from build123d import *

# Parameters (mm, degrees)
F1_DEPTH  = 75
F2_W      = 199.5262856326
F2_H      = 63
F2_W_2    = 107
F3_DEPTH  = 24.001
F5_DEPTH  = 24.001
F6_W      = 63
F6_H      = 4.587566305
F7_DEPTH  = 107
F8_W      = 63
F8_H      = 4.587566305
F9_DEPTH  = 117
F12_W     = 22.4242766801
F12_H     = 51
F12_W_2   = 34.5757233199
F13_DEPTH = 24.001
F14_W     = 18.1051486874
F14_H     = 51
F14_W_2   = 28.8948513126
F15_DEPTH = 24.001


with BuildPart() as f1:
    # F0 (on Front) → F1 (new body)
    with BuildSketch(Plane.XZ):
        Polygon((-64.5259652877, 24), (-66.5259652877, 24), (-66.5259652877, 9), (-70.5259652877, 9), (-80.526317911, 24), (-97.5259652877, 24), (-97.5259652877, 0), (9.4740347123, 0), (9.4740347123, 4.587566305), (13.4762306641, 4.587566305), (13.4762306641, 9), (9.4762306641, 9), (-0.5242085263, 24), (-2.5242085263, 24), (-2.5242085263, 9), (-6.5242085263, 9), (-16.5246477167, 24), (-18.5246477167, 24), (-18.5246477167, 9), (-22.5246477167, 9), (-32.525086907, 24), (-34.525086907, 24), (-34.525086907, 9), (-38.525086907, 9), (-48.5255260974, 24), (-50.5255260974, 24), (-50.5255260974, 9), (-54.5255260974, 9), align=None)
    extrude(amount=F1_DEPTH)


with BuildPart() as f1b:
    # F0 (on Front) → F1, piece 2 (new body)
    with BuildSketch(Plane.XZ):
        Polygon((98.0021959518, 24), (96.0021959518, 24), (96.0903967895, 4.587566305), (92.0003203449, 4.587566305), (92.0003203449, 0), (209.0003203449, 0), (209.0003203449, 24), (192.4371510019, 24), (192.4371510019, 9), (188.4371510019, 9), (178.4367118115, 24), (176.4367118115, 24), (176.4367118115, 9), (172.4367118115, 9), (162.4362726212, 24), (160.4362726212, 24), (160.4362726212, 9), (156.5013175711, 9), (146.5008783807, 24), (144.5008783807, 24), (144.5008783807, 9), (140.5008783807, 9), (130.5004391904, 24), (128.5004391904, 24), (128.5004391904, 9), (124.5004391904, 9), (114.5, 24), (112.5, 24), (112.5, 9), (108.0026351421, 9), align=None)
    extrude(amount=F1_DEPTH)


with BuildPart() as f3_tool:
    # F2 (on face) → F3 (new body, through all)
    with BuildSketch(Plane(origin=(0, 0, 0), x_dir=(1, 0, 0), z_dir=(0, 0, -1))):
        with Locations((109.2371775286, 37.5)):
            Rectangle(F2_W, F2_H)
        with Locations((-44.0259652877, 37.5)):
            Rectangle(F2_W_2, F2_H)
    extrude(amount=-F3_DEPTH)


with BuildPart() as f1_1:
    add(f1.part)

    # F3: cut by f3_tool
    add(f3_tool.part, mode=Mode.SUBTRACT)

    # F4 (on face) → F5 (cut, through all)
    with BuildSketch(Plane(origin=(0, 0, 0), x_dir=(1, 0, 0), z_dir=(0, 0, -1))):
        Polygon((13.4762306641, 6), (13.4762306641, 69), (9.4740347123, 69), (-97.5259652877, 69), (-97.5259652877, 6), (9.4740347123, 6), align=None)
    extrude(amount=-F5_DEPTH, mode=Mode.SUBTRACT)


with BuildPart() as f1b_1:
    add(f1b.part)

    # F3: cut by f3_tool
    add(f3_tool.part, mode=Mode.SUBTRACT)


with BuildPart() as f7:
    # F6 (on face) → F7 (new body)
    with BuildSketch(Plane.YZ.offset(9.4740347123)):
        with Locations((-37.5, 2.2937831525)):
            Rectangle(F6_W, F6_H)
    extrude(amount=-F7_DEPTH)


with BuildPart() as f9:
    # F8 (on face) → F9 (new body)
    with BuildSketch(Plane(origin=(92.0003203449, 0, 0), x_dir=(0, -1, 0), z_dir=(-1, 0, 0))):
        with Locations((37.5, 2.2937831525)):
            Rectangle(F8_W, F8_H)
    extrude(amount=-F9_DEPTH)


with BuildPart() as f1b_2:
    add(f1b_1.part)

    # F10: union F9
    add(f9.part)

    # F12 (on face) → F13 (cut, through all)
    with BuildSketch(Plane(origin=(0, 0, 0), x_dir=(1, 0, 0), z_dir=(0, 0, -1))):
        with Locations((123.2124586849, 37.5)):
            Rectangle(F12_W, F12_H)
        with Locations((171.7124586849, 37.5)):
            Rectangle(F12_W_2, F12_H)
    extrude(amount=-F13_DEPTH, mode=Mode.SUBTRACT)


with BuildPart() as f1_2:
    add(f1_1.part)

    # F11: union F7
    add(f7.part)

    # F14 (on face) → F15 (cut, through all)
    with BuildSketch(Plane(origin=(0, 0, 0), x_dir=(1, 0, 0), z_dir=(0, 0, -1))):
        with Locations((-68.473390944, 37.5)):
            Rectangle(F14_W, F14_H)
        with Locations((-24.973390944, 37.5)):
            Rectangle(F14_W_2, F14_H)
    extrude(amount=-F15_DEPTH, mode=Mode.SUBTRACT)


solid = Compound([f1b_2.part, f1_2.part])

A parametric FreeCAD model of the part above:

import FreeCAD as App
import Part
import Sketcher


def add_polygon(sketch, points):
    """Adds a closed chain of lines whose ends are joined by coincident constraints."""
    first, n = sketch.GeometryCount, len(points)
    for a, b in zip(points, points[1:] + points[:1]):
        sketch.addGeometry(Part.LineSegment(App.Vector(*a, 0), App.Vector(*b, 0)), False)
    for i in range(n):
        sketch.addConstraint(Sketcher.Constraint("Coincident", first + i, 2, first + (i + 1) % n, 1))

doc = App.newDocument("Part")
params = doc.addObject("Spreadsheet::Sheet", "Params")
for row, (alias, value) in enumerate([
    ("sketch1_width", "2 mm"),
    ("sketch1_width2", "4 mm"),
    ("sketch1_width3", "107 mm"),
    ("sketch1_height", "15 mm"),
    ("sketch1_height2", "24 mm"),
    ("pad1_length", "75 mm"),
    ("sketch2_width", "2 mm"),
    ("sketch2_width2", "117 mm"),
    ("sketch2_width3", "4 mm"),
    ("sketch2_height", "24 mm"),
    ("sketch2_height2", "15 mm"),
    ("pad2_length", "75 mm"),
    ("sketch3_height", "63 mm"),
    ("pad3_length", "24.001 mm"),
    ("sketch4_height", "63 mm"),
    ("sketch5_width", "63 mm"),
    ("pad4_length", "107 mm"),
    ("sketch6_width", "63 mm"),
    ("pad5_length", "117 mm"),
    ("sketch7_height", "51 mm"),
    ("sketch8_height", "51 mm"),
], start=1):
    params.set(f"A{row}", alias)
    params.set(f"B{row}", "=" + value)
    params.setAlias(f"B{row}", alias)

body = doc.addObject("PartDesign::Body", "Body")

# Sketch on XZ plane
sketch1 = body.newObject("Sketcher::SketchObject", "Sketch")
sketch1.AttachmentSupport = (doc.getObject("XZ_Plane"), [""])
sketch1.MapMode = "FlatFace"
add_polygon(sketch1, [(-64.5, 24), (-66.5, 24), (-66.5, 9), (-70.5, 9), (-80.5, 24), (-97.5, 24), (-97.5, 0), (9.5, 0), (9.5, 4.6), (13.5, 4.6), (13.5, 9), (9.5, 9), (-0.5, 24), (-2.5, 24), (-2.5, 9), (-6.5, 9), (-16.5, 24), (-18.5, 24), (-18.5, 9), (-22.5, 9), (-32.5, 24), (-34.5, 24), (-34.5, 9), (-38.5, 9), (-48.5, 24), (-50.5, 24), (-50.5, 9), (-54.5, 9)])  # lines 0-27
sketch1.addConstraint(Sketcher.Constraint("Horizontal", 0))
sketch1.addConstraint(Sketcher.Constraint("Vertical", 1))
sketch1.addConstraint(Sketcher.Constraint("Horizontal", 2))
sketch1.addConstraint(Sketcher.Constraint("Horizontal", 4))
sketch1.addConstraint(Sketcher.Constraint("Vertical", 5))
sketch1.addConstraint(Sketcher.Constraint("Horizontal", 6))
sketch1.addConstraint(Sketcher.Constraint("Vertical", 7))
sketch1.addConstraint(Sketcher.Constraint("Horizontal", 8))
sketch1.addConstraint(Sketcher.Constraint("Vertical", 9))
sketch1.addConstraint(Sketcher.Constraint("Horizontal", 10))
sketch1.addConstraint(Sketcher.Constraint("Horizontal", 12))
sketch1.addConstraint(Sketcher.Constraint("Vertical", 13))
sketch1.addConstraint(Sketcher.Constraint("Horizontal", 14))
sketch1.addConstraint(Sketcher.Constraint("Horizontal", 16))
sketch1.addConstraint(Sketcher.Constraint("Vertical", 17))
sketch1.addConstraint(Sketcher.Constraint("Horizontal", 18))
sketch1.addConstraint(Sketcher.Constraint("Horizontal", 20))
sketch1.addConstraint(Sketcher.Constraint("Vertical", 21))
sketch1.addConstraint(Sketcher.Constraint("Horizontal", 22))
sketch1.addConstraint(Sketcher.Constraint("Horizontal", 24))
sketch1.addConstraint(Sketcher.Constraint("Vertical", 25))
sketch1.addConstraint(Sketcher.Constraint("Horizontal", 26))
sketch1.addConstraint(Sketcher.Constraint("PointOnObject", 5, 2, -1))
sketch1.addConstraint(Sketcher.Constraint("Parallel", 11, 15))
sketch1.addConstraint(Sketcher.Constraint("Parallel", 15, 19))
sketch1.addConstraint(Sketcher.Constraint("Parallel", 19, 23))
sketch1.addConstraint(Sketcher.Constraint("Parallel", 23, 27))
sketch1.addConstraint(Sketcher.Constraint("Horizontal", 0, 2, 3, 2))
sketch1.addConstraint(Sketcher.Constraint("Horizontal", 2, 2, 9, 2))
sketch1.addConstraint(Sketcher.Constraint("Horizontal", 4, 2, 11, 2))
sketch1.addConstraint(Sketcher.Constraint("Horizontal", 10, 2, 13, 2))
sketch1.addConstraint(Sketcher.Constraint("Horizontal", 12, 2, 15, 2))
sketch1.addConstraint(Sketcher.Constraint("Horizontal", 14, 2, 17, 2))
sketch1.addConstraint(Sketcher.Constraint("Horizontal", 16, 2, 19, 2))
sketch1.addConstraint(Sketcher.Constraint("Horizontal", 18, 2, 21, 2))
sketch1.addConstraint(Sketcher.Constraint("Horizontal", 20, 2, 23, 2))
sketch1.addConstraint(Sketcher.Constraint("Horizontal", 22, 2, 25, 2))
sketch1.addConstraint(Sketcher.Constraint("Equal", 2, 10))
sketch1.addConstraint(Sketcher.Constraint("Equal", 0, 12))
sketch1.addConstraint(Sketcher.Constraint("Equal", 10, 14))
sketch1.addConstraint(Sketcher.Constraint("Equal", 12, 16))
sketch1.addConstraint(Sketcher.Constraint("Equal", 14, 18))
sketch1.addConstraint(Sketcher.Constraint("Equal", 16, 20))
sketch1.addConstraint(Sketcher.Constraint("Equal", 18, 22))
sketch1.addConstraint(Sketcher.Constraint("Equal", 20, 24))
sketch1.addConstraint(Sketcher.Constraint("Equal", 22, 26))
sketch1.addConstraint(Sketcher.Constraint("DistanceX", 0, 2, 0, 1, 2.0))
sketch1.addConstraint(Sketcher.Constraint("DistanceX", 2, 2, 2, 1, 4.0))
sketch1.addConstraint(Sketcher.Constraint("DistanceX", 6, 1, 6, 2, 107.0))
sketch1.addConstraint(Sketcher.Constraint("DistanceY", 1, 2, 1, 1, 15.0))
sketch1.addConstraint(Sketcher.Constraint("DistanceY", 5, 2, 5, 1, 24.0))
sketch1.addConstraint(Sketcher.Constraint("DistanceX", 4, 2, 2, 2, 27.0))
sketch1.addConstraint(Sketcher.Constraint("Distance", 11, 18.028))
sketch1.addConstraint(Sketcher.Constraint("Distance", 3, 18.027952))
sketch1.addConstraint(Sketcher.Constraint("DistanceY", 7, 1, 7, 2, 4.587566))
sketch1.addConstraint(Sketcher.Constraint("DistanceX", -1, 1, 8, 2, 13.476231))
sketch1.setExpression("Constraints[74]", "Params.sketch1_width")
sketch1.setExpression("Constraints[75]", "Params.sketch1_width2")
sketch1.setExpression("Constraints[76]", "Params.sketch1_width3")
sketch1.setExpression("Constraints[77]", "Params.sketch1_height")
sketch1.setExpression("Constraints[78]", "Params.sketch1_height2")
pad1 = body.newObject("PartDesign::Pad", "Pad")
pad1.Profile = sketch1
pad1.setExpression("Length", "Params.pad1_length")
body2 = doc.addObject("PartDesign::Body", "Body001")

# Sketch on XZ plane
sketch2 = body2.newObject("Sketcher::SketchObject", "Sketch001")
sketch2.AttachmentSupport = (doc.getObject("XZ_Plane001"), [""])
sketch2.MapMode = "FlatFace"
add_polygon(sketch2, [(98, 24), (96, 24), (96.1, 4.6), (92, 4.6), (92, 0), (209, 0), (209, 24), (192.4, 24), (192.4, 9), (188.4, 9), (178.4, 24), (176.4, 24), (176.4, 9), (172.4, 9), (162.4, 24), (160.4, 24), (160.4, 9), (156.5, 9), (146.5, 24), (144.5, 24), (144.5, 9), (140.5, 9), (130.5, 24), (128.5, 24), (128.5, 9), (124.5, 9), (114.5, 24), (112.5, 24), (112.5, 9), (108, 9)])  # lines 0-29
sketch2.addConstraint(Sketcher.Constraint("Horizontal", 0))
sketch2.addConstraint(Sketcher.Constraint("Horizontal", 2))
sketch2.addConstraint(Sketcher.Constraint("Vertical", 3))
sketch2.addConstraint(Sketcher.Constraint("Horizontal", 4))
sketch2.addConstraint(Sketcher.Constraint("Vertical", 5))
sketch2.addConstraint(Sketcher.Constraint("Horizontal", 6))
sketch2.addConstraint(Sketcher.Constraint("Vertical", 7))
sketch2.addConstraint(Sketcher.Constraint("Horizontal", 8))
sketch2.addConstraint(Sketcher.Constraint("Horizontal", 10))
sketch2.addConstraint(Sketcher.Constraint("Vertical", 11))
sketch2.addConstraint(Sketcher.Constraint("Horizontal", 12))
sketch2.addConstraint(Sketcher.Constraint("Horizontal", 14))
sketch2.addConstraint(Sketcher.Constraint("Vertical", 15))
sketch2.addConstraint(Sketcher.Constraint("Horizontal", 16))
sketch2.addConstraint(Sketcher.Constraint("Horizontal", 18))
sketch2.addConstraint(Sketcher.Constraint("Vertical", 19))
sketch2.addConstraint(Sketcher.Constraint("Horizontal", 20))
sketch2.addConstraint(Sketcher.Constraint("Horizontal", 22))
sketch2.addConstraint(Sketcher.Constraint("Vertical", 23))
sketch2.addConstraint(Sketcher.Constraint("Horizontal", 24))
sketch2.addConstraint(Sketcher.Constraint("Horizontal", 26))
sketch2.addConstraint(Sketcher.Constraint("Vertical", 27))
sketch2.addConstraint(Sketcher.Constraint("Horizontal", 28))
sketch2.addConstraint(Sketcher.Constraint("PointOnObject", 3, 2, -1))
sketch2.addConstraint(Sketcher.Constraint("Parallel", 9, 13))
sketch2.addConstraint(Sketcher.Constraint("Parallel", 13, 17))
sketch2.addConstraint(Sketcher.Constraint("Parallel", 17, 21))
sketch2.addConstraint(Sketcher.Constraint("Parallel", 21, 25))
sketch2.addConstraint(Sketcher.Constraint("Parallel", 25, 29))
sketch2.addConstraint(Sketcher.Constraint("Horizontal", 0, 2, 5, 2))
sketch2.addConstraint(Sketcher.Constraint("Horizontal", 6, 2, 9, 2))
sketch2.addConstraint(Sketcher.Constraint("Horizontal", 8, 2, 11, 2))
sketch2.addConstraint(Sketcher.Constraint("Horizontal", 10, 2, 13, 2))
sketch2.addConstraint(Sketcher.Constraint("Horizontal", 12, 2, 15, 2))
sketch2.addConstraint(Sketcher.Constraint("Horizontal", 14, 2, 17, 2))
sketch2.addConstraint(Sketcher.Constraint("Horizontal", 16, 2, 19, 2))
sketch2.addConstraint(Sketcher.Constraint("Horizontal", 18, 2, 21, 2))
sketch2.addConstraint(Sketcher.Constraint("Horizontal", 20, 2, 23, 2))
sketch2.addConstraint(Sketcher.Constraint("Horizontal", 22, 2, 25, 2))
sketch2.addConstraint(Sketcher.Constraint("Horizontal", 24, 2, 27, 2))
sketch2.addConstraint(Sketcher.Constraint("Equal", 0, 10))
sketch2.addConstraint(Sketcher.Constraint("Equal", 8, 12))
sketch2.addConstraint(Sketcher.Constraint("Equal", 10, 14))
sketch2.addConstraint(Sketcher.Constraint("Equal", 14, 18))
sketch2.addConstraint(Sketcher.Constraint("Equal", 12, 20))
sketch2.addConstraint(Sketcher.Constraint("Equal", 18, 22))
sketch2.addConstraint(Sketcher.Constraint("Equal", 20, 24))
sketch2.addConstraint(Sketcher.Constraint("Equal", 22, 26))
sketch2.addConstraint(Sketcher.Constraint("DistanceX", 0, 2, 0, 1, 2.0))
sketch2.addConstraint(Sketcher.Constraint("DistanceX", 4, 1, 4, 2, 117.0))
sketch2.addConstraint(Sketcher.Constraint("DistanceX", 8, 2, 8, 1, 4.0))
sketch2.addConstraint(Sketcher.Constraint("DistanceY", 5, 1, 5, 2, 24.0))
sketch2.addConstraint(Sketcher.Constraint("DistanceY", 7, 2, 7, 1, 15.0))
sketch2.addConstraint(Sketcher.Constraint("DistanceX", -1, 1, 25, 2, 114.5))
sketch2.addConstraint(Sketcher.Constraint("Distance", 9, 18.028))
sketch2.addConstraint(Sketcher.Constraint("DistanceX", 6, 2, 6, 1, 16.563169))
sketch2.addConstraint(Sketcher.Constraint("DistanceX", 0, 2, 1, 2, 0.088201))
sketch2.addConstraint(Sketcher.Constraint("DistanceX", 2, 2, 2, 1, 4.090076))
sketch2.addConstraint(Sketcher.Constraint("DistanceX", 16, 2, 16, 1, 3.934955))
sketch2.addConstraint(Sketcher.Constraint("DistanceY", 3, 2, 3, 1, 4.587566))
sketch2.setExpression("Constraints[78]", "Params.sketch2_width")
sketch2.setExpression("Constraints[79]", "Params.sketch2_width2")
sketch2.setExpression("Constraints[80]", "Params.sketch2_width3")
sketch2.setExpression("Constraints[81]", "Params.sketch2_height")
sketch2.setExpression("Constraints[82]", "Params.sketch2_height2")
pad2 = body2.newObject("PartDesign::Pad", "Pad001")
pad2.Profile = sketch2
pad2.setExpression("Length", "Params.pad2_length")
body3 = doc.addObject("PartDesign::Body", "Body002")

# Sketch on XY plane
sketch3 = body3.newObject("Sketcher::SketchObject", "Sketch002")
sketch3.AttachmentSupport = (doc.getObject("XY_Plane002"), [""])
sketch3.MapMode = "FlatFace"
add_polygon(sketch3, [(209, -6), (209, -69), (-98, -69), (-98, -6)])  # lines 0-3
sketch3.addConstraint(Sketcher.Constraint("Vertical", 0))
sketch3.addConstraint(Sketcher.Constraint("Horizontal", 1))
sketch3.addConstraint(Sketcher.Constraint("Vertical", 2))
sketch3.addConstraint(Sketcher.Constraint("Horizontal", 3))
sketch3.addConstraint(Sketcher.Constraint("DistanceY", 0, 2, 0, 1, 63.0))
sketch3.addConstraint(Sketcher.Constraint("DistanceY", 0, 2, -1, 1, 69.0))
sketch3.addConstraint(Sketcher.Constraint("DistanceX", 1, 2, 1, 1, 306.526286))
sketch3.addConstraint(Sketcher.Constraint("DistanceX", -1, 1, 0, 2, 209.00032))
sketch3.setExpression("Constraints[8]", "Params.sketch3_height")
pad3 = body3.newObject("PartDesign::Pad", "Pad002")
pad3.Profile = sketch3
pad3.setExpression("Length", "Params.pad3_length")
body.AllowCompound = True
doc.recompute()

body4 = doc.addObject("PartDesign::Body", "Body003")
body4.BaseFeature = body3
boolean = body.newObject("PartDesign::Boolean", "Boolean")
boolean.Type = "Cut"
boolean.addObjects([body4])
doc.recompute()

# Sketch on XY plane
sketch4 = body.newObject("Sketcher::SketchObject", "Sketch003")
sketch4.AttachmentSupport = (doc.getObject("XY_Plane"), [""])
sketch4.MapMode = "FlatFace"
add_polygon(sketch4, [(13, -6), (13, -69), (-98, -69), (-98, -6)])  # lines 0-3
sketch4.addConstraint(Sketcher.Constraint("Vertical", 0))
sketch4.addConstraint(Sketcher.Constraint("Horizontal", 1))
sketch4.addConstraint(Sketcher.Constraint("Vertical", 2))
sketch4.addConstraint(Sketcher.Constraint("Horizontal", 3))
sketch4.addConstraint(Sketcher.Constraint("DistanceY", 0, 2, 0, 1, 63.0))
sketch4.addConstraint(Sketcher.Constraint("DistanceY", 0, 2, -1, 1, 69.0))
sketch4.addConstraint(Sketcher.Constraint("DistanceX", 1, 2, 1, 1, 111.002196))
sketch4.addConstraint(Sketcher.Constraint("DistanceX", -1, 1, 0, 2, 13.476231))
sketch4.setExpression("Constraints[8]", "Params.sketch4_height")
pocket1 = body.newObject("PartDesign::Pocket", "Pocket")
pocket1.Profile = sketch4
pocket1.Type = "ThroughAll"
pocket1.Reversed = True
body2.AllowCompound = True
doc.recompute()

boolean2 = body2.newObject("PartDesign::Boolean", "Boolean001")
boolean2.Type = "Cut"
boolean2.addObjects([body3])
body5 = doc.addObject("PartDesign::Body", "Body004")

# Sketch on YZ plane
sketch5 = body5.newObject("Sketcher::SketchObject", "Sketch004")
sketch5.AttachmentSupport = (doc.getObject("YZ_Plane004"), [""])
sketch5.MapMode = "FlatFace"
sketch5.AttachmentOffset = App.Placement(App.Vector(0, 0, 9.474035), App.Rotation())
add_polygon(sketch5, [(-69, 4.6), (-69, 0), (-6, 0), (-6, 4.6)])  # lines 0-3
sketch5.addConstraint(Sketcher.Constraint("Vertical", 0))
sketch5.addConstraint(Sketcher.Constraint("Horizontal", 1))
sketch5.addConstraint(Sketcher.Constraint("Vertical", 2))
sketch5.addConstraint(Sketcher.Constraint("Horizontal", 3))
sketch5.addConstraint(Sketcher.Constraint("PointOnObject", 0, 2, -1))
sketch5.addConstraint(Sketcher.Constraint("DistanceX", 1, 1, 1, 2, 63.0))
sketch5.addConstraint(Sketcher.Constraint("DistanceX", 0, 2, -1, 1, 69.0))
sketch5.addConstraint(Sketcher.Constraint("DistanceY", 0, 2, 0, 1, 4.587566))
sketch5.setExpression("Constraints[9]", "Params.sketch5_width")
pad4 = body5.newObject("PartDesign::Pad", "Pad003")
pad4.Profile = sketch5
pad4.setExpression("Length", "Params.pad4_length")
pad4.Reversed = True
body6 = doc.addObject("PartDesign::Body", "Body005")

# Sketch on YZ plane
sketch6 = body6.newObject("Sketcher::SketchObject", "Sketch005")
sketch6.AttachmentSupport = (doc.getObject("YZ_Plane005"), [""])
sketch6.MapMode = "FlatFace"
sketch6.AttachmentOffset = App.Placement(App.Vector(0, 0, 92.00032), App.Rotation())
add_polygon(sketch6, [(-6, 4.6), (-6, 0), (-69, 0), (-69, 4.6)])  # lines 0-3
sketch6.addConstraint(Sketcher.Constraint("Vertical", 0))
sketch6.addConstraint(Sketcher.Constraint("Horizontal", 1))
sketch6.addConstraint(Sketcher.Constraint("Vertical", 2))
sketch6.addConstraint(Sketcher.Constraint("Horizontal", 3))
sketch6.addConstraint(Sketcher.Constraint("PointOnObject", 0, 2, -1))
sketch6.addConstraint(Sketcher.Constraint("DistanceX", 1, 2, 1, 1, 63.0))
sketch6.addConstraint(Sketcher.Constraint("DistanceX", 0, 2, -1, 1, 6.0))
sketch6.addConstraint(Sketcher.Constraint("DistanceY", 0, 2, 0, 1, 4.587566))
sketch6.setExpression("Constraints[9]", "Params.sketch6_width")
pad5 = body6.newObject("PartDesign::Pad", "Pad004")
pad5.Profile = sketch6
pad5.setExpression("Length", "Params.pad5_length")
doc.recompute()

boolean3 = body2.newObject("PartDesign::Boolean", "Boolean002")
boolean3.Type = "Fuse"
boolean3.addObjects([body6])

# Sketch on XY plane
sketch7 = body2.newObject("Sketcher::SketchObject", "Sketch006")
sketch7.AttachmentSupport = (doc.getObject("XY_Plane001"), [""])
sketch7.MapMode = "FlatFace"
add_polygon(sketch7, [(112, -63), (112, -12), (134, -12), (134, -63)])  # lines 0-3
add_polygon(sketch7, [(154, -63), (154, -12), (189, -12), (189, -63)])  # lines 4-7
sketch7.addConstraint(Sketcher.Constraint("Vertical", 0))
sketch7.addConstraint(Sketcher.Constraint("Horizontal", 1))
sketch7.addConstraint(Sketcher.Constraint("Vertical", 2))
sketch7.addConstraint(Sketcher.Constraint("Horizontal", 3))
sketch7.addConstraint(Sketcher.Constraint("Vertical", 4))
sketch7.addConstraint(Sketcher.Constraint("Horizontal", 5))
sketch7.addConstraint(Sketcher.Constraint("Vertical", 6))
sketch7.addConstraint(Sketcher.Constraint("Horizontal", 7))
sketch7.addConstraint(Sketcher.Constraint("Horizontal", 1, 2, 4, 2))
sketch7.addConstraint(Sketcher.Constraint("Horizontal", 3, 2, 6, 2))
sketch7.addConstraint(Sketcher.Constraint("DistanceY", 0, 1, 0, 2, 51.0))
sketch7.addConstraint(Sketcher.Constraint("DistanceY", 0, 2, -1, 1, 12.0))
sketch7.addConstraint(Sketcher.Constraint("DistanceX", 1, 2, 4, 2, 20.0))
sketch7.addConstraint(Sketcher.Constraint("DistanceX", 0, 2, 5, 2, 77.0))
sketch7.addConstraint(Sketcher.Constraint("DistanceX", 1, 1, 1, 2, 22.424277))
sketch7.addConstraint(Sketcher.Constraint("DistanceX", -1, 1, 0, 2, 112.00032))
sketch7.setExpression("Constraints[18]", "Params.sketch7_height")
pocket2 = body2.newObject("PartDesign::Pocket", "Pocket001")
pocket2.Profile = sketch7
pocket2.Type = "ThroughAll"
pocket2.Reversed = True
doc.recompute()

boolean4 = body.newObject("PartDesign::Boolean", "Boolean003")
boolean4.Type = "Fuse"
boolean4.addObjects([body5])

# Sketch on XY plane
sketch8 = body.newObject("Sketcher::SketchObject", "Sketch007")
sketch8.AttachmentSupport = (doc.getObject("XY_Plane"), [""])
sketch8.MapMode = "FlatFace"
add_polygon(sketch8, [(-78, -63), (-78, -12), (-59, -12), (-59, -63)])  # lines 0-3
add_polygon(sketch8, [(-39, -63), (-39, -12), (-11, -12), (-11, -63)])  # lines 4-7
sketch8.addConstraint(Sketcher.Constraint("Vertical", 0))
sketch8.addConstraint(Sketcher.Constraint("Horizontal", 1))
sketch8.addConstraint(Sketcher.Constraint("Vertical", 2))
sketch8.addConstraint(Sketcher.Constraint("Horizontal", 3))
sketch8.addConstraint(Sketcher.Constraint("Vertical", 4))
sketch8.addConstraint(Sketcher.Constraint("Horizontal", 5))
sketch8.addConstraint(Sketcher.Constraint("Vertical", 6))
sketch8.addConstraint(Sketcher.Constraint("Horizontal", 7))
sketch8.addConstraint(Sketcher.Constraint("Horizontal", 1, 2, 4, 2))
sketch8.addConstraint(Sketcher.Constraint("Horizontal", 3, 2, 6, 2))
sketch8.addConstraint(Sketcher.Constraint("DistanceY", 0, 1, 0, 2, 51.0))
sketch8.addConstraint(Sketcher.Constraint("DistanceY", 0, 2, -1, 1, 12.0))
sketch8.addConstraint(Sketcher.Constraint("DistanceX", 1, 2, 4, 2, 20.0))
sketch8.addConstraint(Sketcher.Constraint("DistanceX", 0, 2, 5, 2, 67.0))
sketch8.addConstraint(Sketcher.Constraint("DistanceX", 1, 1, 1, 2, 18.105149))
sketch8.addConstraint(Sketcher.Constraint("DistanceX", 0, 2, -1, 1, 77.525965))
sketch8.setExpression("Constraints[18]", "Params.sketch8_height")
pocket3 = body.newObject("PartDesign::Pocket", "Pocket002")
pocket3.Profile = sketch8
pocket3.Type = "ThroughAll"
pocket3.Reversed = True

doc.recompute()
